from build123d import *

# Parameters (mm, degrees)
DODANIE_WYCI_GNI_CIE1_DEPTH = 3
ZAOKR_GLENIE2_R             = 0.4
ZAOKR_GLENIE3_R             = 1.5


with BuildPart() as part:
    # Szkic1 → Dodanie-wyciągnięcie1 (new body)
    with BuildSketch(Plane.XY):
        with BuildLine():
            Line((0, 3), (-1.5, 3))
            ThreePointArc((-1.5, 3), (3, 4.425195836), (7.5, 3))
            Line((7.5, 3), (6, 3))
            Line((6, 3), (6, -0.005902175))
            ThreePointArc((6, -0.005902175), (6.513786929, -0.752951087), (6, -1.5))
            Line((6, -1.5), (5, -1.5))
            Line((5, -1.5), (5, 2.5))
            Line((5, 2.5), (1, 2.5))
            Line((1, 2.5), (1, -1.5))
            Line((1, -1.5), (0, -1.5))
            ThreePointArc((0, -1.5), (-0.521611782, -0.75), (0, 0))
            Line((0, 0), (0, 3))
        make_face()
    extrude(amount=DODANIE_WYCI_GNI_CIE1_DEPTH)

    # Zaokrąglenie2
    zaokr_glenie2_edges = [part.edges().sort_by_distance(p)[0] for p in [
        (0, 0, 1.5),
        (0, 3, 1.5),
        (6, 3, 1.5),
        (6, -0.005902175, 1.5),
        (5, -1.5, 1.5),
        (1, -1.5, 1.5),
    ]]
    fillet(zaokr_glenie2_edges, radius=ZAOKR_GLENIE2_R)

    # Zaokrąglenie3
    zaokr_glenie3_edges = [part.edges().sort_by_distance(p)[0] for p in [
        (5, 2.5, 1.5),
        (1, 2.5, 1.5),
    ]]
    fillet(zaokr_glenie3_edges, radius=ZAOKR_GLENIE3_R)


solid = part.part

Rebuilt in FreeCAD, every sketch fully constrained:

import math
import FreeCAD as App
import Part
import Sketcher
from FreeCAD import Vector


def edges_at(feature, points):
    """Names of the edges that pass closest to the given points."""
    edges = feature.Shape.Edges
    near = lambda p: min(range(len(edges)), key=lambda i: edges[i].distToShape(Part.Vertex(*p))[0])
    return sorted({f"Edge{near(p) + 1}" for p in points})

doc = App.newDocument("Part")
body = doc.addObject("PartDesign::Body", "Body")

# Sketch on XY plane
sketch1 = body.newObject("Sketcher::SketchObject", "Sketch")
sketch1.AttachmentSupport = (doc.getObject("XY_Plane"), [""])
sketch1.MapMode = "FlatFace"
sketch1.addGeometry([
    Part.LineSegment(Vector(-1.5, 3, 0), Vector(0, 3, 0)),  # 0
    Part.LineSegment(Vector(0, 3, 0), Vector(0, 0, 0)),  # 1
    Part.ArcOfCircle(Part.Circle(Vector(0.278388, -0.75, 0), Vector(0, 0, 1), 0.8), math.radians(110.364135), math.radians(249.635865)),  # 2
    Part.LineSegment(Vector(0, -1.5, 0), Vector(1, -1.5, 0)),  # 3
    Part.LineSegment(Vector(1, -1.5, 0), Vector(1, 2.5, 0)),  # 4
    Part.LineSegment(Vector(1, 2.5, 0), Vector(5, 2.5, 0)),  # 5
    Part.LineSegment(Vector(5, 2.5, 0), Vector(5, -1.5, 0)),  # 6
    Part.LineSegment(Vector(5, -1.5, 0), Vector(6, -1.5, 0)),  # 7
    Part.ArcOfCircle(Part.Circle(Vector(5.713787, -0.752951, 0), Vector(0, 0, 1), 0.8), math.radians(-69.036918), math.radians(69.036918)),  # 8
    Part.LineSegment(Vector(6, -0.005902, 0), Vector(6, 3, 0)),  # 9
    Part.LineSegment(Vector(6, 3, 0), Vector(7.5, 3, 0)),  # 10
    Part.ArcOfCircle(Part.Circle(Vector(3, -3.391689, 0), Vector(0, 0, 1), 7.816885), math.radians(54.85295), math.radians(125.14705)),  # 11
], False)
sketch1.addConstraint([
    Sketcher.Constraint("Coincident", 0, 2, 1, 1),
    Sketcher.Constraint("Coincident", 1, 2, 2, 1),
    Sketcher.Constraint("Coincident", 2, 2, 3, 1),
    Sketcher.Constraint("Coincident", 3, 2, 4, 1),
    Sketcher.Constraint("Coincident", 4, 2, 5, 1),
    Sketcher.Constraint("Coincident", 5, 2, 6, 1),
    Sketcher.Constraint("Coincident", 6, 2, 7, 1),
    Sketcher.Constraint("Coincident", 7, 2, 8, 1),
    Sketcher.Constraint("Coincident", 8, 2, 9, 1),
    Sketcher.Constraint("Coincident", 9, 2, 10, 1),
    Sketcher.Constraint("Coincident", 10, 2, 11, 1),
    Sketcher.Constraint("Coincident", 11, 2, 0, 1),
    Sketcher.Constraint("Horizontal", 0),
    Sketcher.Constraint("Vertical", 1),
    Sketcher.Constraint("Horizontal", 3),
    Sketcher.Constraint("Vertical", 4),
    Sketcher.Constraint("Horizontal", 5),
    Sketcher.Constraint("Vertical", 6),
    Sketcher.Constraint("Horizontal", 7),
    Sketcher.Constraint("Vertical", 9),
    Sketcher.Constraint("Horizontal", 10),
    Sketcher.Constraint("Coincident", 1, 2, -1, 1),
    Sketcher.Constraint("Equal", 2, 8),
    Sketcher.Constraint("PointOnObject", 2, 2, -2),
    Sketcher.Constraint("Horizontal", 3, 2, 6, 2),
    Sketcher.Constraint("Horizontal", 0, 2, 9, 2),
    Sketcher.Constraint("Vertical", 7, 2, 8, 2),
    Sketcher.Constraint("Equal", 3, 7),
    Sketcher.Constraint("Equal", 0, 10),
    Sketcher.Constraint("Equal", 5, 4),
    Sketcher.Constraint("Radius", 2, 0.8),
    Sketcher.Constraint("DistanceX", 3, 1, 3, 2, 1.0),
    Sketcher.Constraint("DistanceX", 5, 1, 5, 2, 4.0),
    Sketcher.Constraint("DistanceY", 1, 2, 1, 1, 3.0),
    Sketcher.Constraint("DistanceX", 0, 1, 0, 2, 1.5),
    Sketcher.Constraint("DistanceY", 2, 2, -1, 1, 1.5),
    Sketcher.Constraint("Radius", 11, 7.816885),
    Sketcher.Constraint("DistanceX", 2, 3, 8, 3, 5.435399),
])
pad1 = body.newObject("PartDesign::Pad", "Pad")
pad1.Profile = sketch1
pad1.Length = 3
doc.recompute()

fillet = body.newObject("PartDesign::Fillet", "Fillet")
fillet.Base = (pad1, edges_at(pad1, [
    (0, 0, 1.5),
    (0, 3, 1.5),
    (6, 3, 1.5),
    (6, -0.006, 1.5),
    (5, -1.5, 1.5),
    (1, -1.5, 1.5),
]))
fillet.Radius = 0.4
doc.recompute()

fillet2 = body.newObject("PartDesign::Fillet", "Fillet001")
fillet2.Base = (fillet, edges_at(fillet, [(5, 2.5, 1.5), (1, 2.5, 1.5)]))
fillet2.Radius = 1.5

doc.recompute()
